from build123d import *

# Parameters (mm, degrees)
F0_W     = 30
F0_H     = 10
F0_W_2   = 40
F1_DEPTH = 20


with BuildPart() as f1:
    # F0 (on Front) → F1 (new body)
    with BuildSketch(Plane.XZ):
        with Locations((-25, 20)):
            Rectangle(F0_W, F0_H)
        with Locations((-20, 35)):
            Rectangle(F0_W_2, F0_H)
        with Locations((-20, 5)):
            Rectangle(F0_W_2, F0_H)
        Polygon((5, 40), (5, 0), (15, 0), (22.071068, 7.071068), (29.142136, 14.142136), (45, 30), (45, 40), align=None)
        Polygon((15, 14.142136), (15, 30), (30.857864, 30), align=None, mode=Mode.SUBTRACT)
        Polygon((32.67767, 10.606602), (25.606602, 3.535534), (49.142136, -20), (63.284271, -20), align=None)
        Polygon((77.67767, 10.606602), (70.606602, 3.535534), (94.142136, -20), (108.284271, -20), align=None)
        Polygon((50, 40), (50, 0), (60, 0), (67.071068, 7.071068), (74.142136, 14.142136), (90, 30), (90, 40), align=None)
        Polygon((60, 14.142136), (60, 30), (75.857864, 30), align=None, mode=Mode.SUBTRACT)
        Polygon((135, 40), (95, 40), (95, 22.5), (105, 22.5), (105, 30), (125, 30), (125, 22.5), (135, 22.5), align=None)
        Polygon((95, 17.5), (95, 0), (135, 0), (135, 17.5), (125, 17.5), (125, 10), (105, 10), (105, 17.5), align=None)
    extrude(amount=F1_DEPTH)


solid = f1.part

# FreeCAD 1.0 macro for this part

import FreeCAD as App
import Part
import Sketcher

V = App.Vector
Q = App.Units.Quantity


def add_polygon(sketch, points):
    """Adds a closed chain of lines whose ends are joined by coincident constraints."""
    first, n = sketch.GeometryCount, len(points)
    for a, b in zip(points, points[1:] + points[:1]):
        sketch.addGeometry(Part.LineSegment(App.Vector(*a, 0), App.Vector(*b, 0)), False)
    for i in range(n):
        sketch.addConstraint(Sketcher.Constraint("Coincident", first + i, 2, first + (i + 1) % n, 1))

doc = App.newDocument("Part")
body = doc.addObject("PartDesign::Body", "Body")
body.AllowCompound = True

# Sketch on XZ plane
sketch1 = body.newObject("Sketcher::SketchObject", "Sketch")
sketch1.AttachmentSupport = (doc.getObject("XZ_Plane"), [""])
sketch1.MapMode = "FlatFace"
add_polygon(sketch1, [(-40, 25), (-40, 15), (-10, 15), (-10, 25)])  # lines 0-3
add_polygon(sketch1, [(-40, 40), (-40, 30), (0, 30), (0, 40)])  # lines 4-7
add_polygon(sketch1, [(-40, 10), (-40, 0), (0, 0), (0, 10)])  # lines 8-11
add_polygon(sketch1, [(5, 40), (5, 0), (15, 0), (45, 30), (45, 40)])  # lines 12-16
add_polygon(sketch1, [(31, 30), (15, 14), (15, 30)])  # lines 17-19
add_polygon(sketch1, [(33, 11), (26, 4), (49, -20), (63, -20)])  # lines 20-23
add_polygon(sketch1, [(78, 11), (71, 4), (94, -20), (108, -20)])  # lines 24-27
add_polygon(sketch1, [(50, 40), (50, 0), (60, 0), (90, 30), (90, 40)])  # lines 28-32
add_polygon(sketch1, [(76, 30), (60, 14), (60, 30)])  # lines 33-35
add_polygon(sketch1, [(135, 40), (95, 40), (95, 22), (105, 22), (105, 30), (125, 30), (125, 22), (135, 22)])  # lines 36-43
add_polygon(sketch1, [(95, 18), (95, 0), (135, 0), (135, 18), (125, 18), (125, 10), (105, 10), (105, 18)])  # lines 44-51
sketch1.addConstraint(Sketcher.Constraint("Vertical", 0))
sketch1.addConstraint(Sketcher.Constraint("Horizontal", 1))
sketch1.addConstraint(Sketcher.Constraint("Vertical", 2))
sketch1.addConstraint(Sketcher.Constraint("Horizontal", 3))
sketch1.addConstraint(Sketcher.Constraint("Vertical", 4))
sketch1.addConstraint(Sketcher.Constraint("Horizontal", 5))
sketch1.addConstraint(Sketcher.Constraint("Vertical", 6))
sketch1.addConstraint(Sketcher.Constraint("Horizontal", 7))
sketch1.addConstraint(Sketcher.Constraint("Vertical", 8))
sketch1.addConstraint(Sketcher.Constraint("Horizontal", 9))
sketch1.addConstraint(Sketcher.Constraint("Vertical", 10))
sketch1.addConstraint(Sketcher.Constraint("Horizontal", 11))
sketch1.addConstraint(Sketcher.Constraint("Vertical", 12))
sketch1.addConstraint(Sketcher.Constraint("Horizontal", 13))
sketch1.addConstraint(Sketcher.Constraint("Vertical", 15))
sketch1.addConstraint(Sketcher.Constraint("Horizontal", 16))
sketch1.addConstraint(Sketcher.Constraint("Vertical", 18))
sketch1.addConstraint(Sketcher.Constraint("Horizontal", 19))
sketch1.addConstraint(Sketcher.Constraint("Horizontal", 22))
sketch1.addConstraint(Sketcher.Constraint("Horizontal", 26))
sketch1.addConstraint(Sketcher.Constraint("Vertical", 28))
sketch1.addConstraint(Sketcher.Constraint("Horizontal", 29))
sketch1.addConstraint(Sketcher.Constraint("Vertical", 31))
sketch1.addConstraint(Sketcher.Constraint("Horizontal", 32))
sketch1.addConstraint(Sketcher.Constraint("Vertical", 34))
sketch1.addConstraint(Sketcher.Constraint("Horizontal", 35))
sketch1.addConstraint(Sketcher.Constraint("Horizontal", 36))
sketch1.addConstraint(Sketcher.Constraint("Vertical", 37))
sketch1.addConstraint(Sketcher.Constraint("Horizontal", 38))
sketch1.addConstraint(Sketcher.Constraint("Vertical", 39))
sketch1.addConstraint(Sketcher.Constraint("Horizontal", 40))
sketch1.addConstraint(Sketcher.Constraint("Vertical", 41))
sketch1.addConstraint(Sketcher.Constraint("Horizontal", 42))
sketch1.addConstraint(Sketcher.Constraint("Vertical", 43))
sketch1.addConstraint(Sketcher.Constraint("Vertical", 44))
sketch1.addConstraint(Sketcher.Constraint("Horizontal", 45))
sketch1.addConstraint(Sketcher.Constraint("Vertical", 46))
sketch1.addConstraint(Sketcher.Constraint("Horizontal", 47))
sketch1.addConstraint(Sketcher.Constraint("Vertical", 48))
sketch1.addConstraint(Sketcher.Constraint("Horizontal", 49))
sketch1.addConstraint(Sketcher.Constraint("Vertical", 50))
sketch1.addConstraint(Sketcher.Constraint("Horizontal", 51))
sketch1.addConstraint(Sketcher.Constraint("Coincident", 9, 2, -1, 1))
sketch1.addConstraint(Sketcher.Constraint("PointOnObject", 5, 2, -2))
sketch1.addConstraint(Sketcher.Constraint("PointOnObject", 12, 2, -1))
sketch1.addConstraint(Sketcher.Constraint("PointOnObject", 28, 2, -1))
sketch1.addConstraint(Sketcher.Constraint("PointOnObject", 44, 2, -1))
sketch1.addConstraint(Sketcher.Constraint("Parallel", 14, 17))
sketch1.addConstraint(Sketcher.Constraint("Parallel", 17, 20))
sketch1.addConstraint(Sketcher.Constraint("Perpendicular", 20, 21))
sketch1.addConstraint(Sketcher.Constraint("Parallel", 21, 23))
sketch1.addConstraint(Sketcher.Constraint("Perpendicular", 23, 24))
sketch1.addConstraint(Sketcher.Constraint("Perpendicular", 24, 25))
sketch1.addConstraint(Sketcher.Constraint("Parallel", 25, 27))
sketch1.addConstraint(Sketcher.Constraint("Perpendicular", 27, 30))
sketch1.addConstraint(Sketcher.Constraint("Parallel", 30, 33))
sketch1.addConstraint(Sketcher.Constraint("Horizontal", 5, 2, 14, 2))
sketch1.addConstraint(Sketcher.Constraint("Horizontal", 7, 2, 15, 2))
sketch1.addConstraint(Sketcher.Constraint("Horizontal", 14, 2, 18, 2))
sketch1.addConstraint(Sketcher.Constraint("Horizontal", 20, 2, 24, 2))
sketch1.addConstraint(Sketcher.Constraint("Horizontal", 22, 2, 25, 2))
sketch1.addConstraint(Sketcher.Constraint("Horizontal", 23, 2, 27, 2))
sketch1.addConstraint(Sketcher.Constraint("Horizontal", 19, 2, 30, 2))
sketch1.addConstraint(Sketcher.Constraint("Horizontal", 16, 2, 31, 2))
sketch1.addConstraint(Sketcher.Constraint("Horizontal", 17, 2, 33, 2))
sketch1.addConstraint(Sketcher.Constraint("Horizontal", 30, 2, 34, 2))
sketch1.addConstraint(Sketcher.Constraint("Horizontal", 32, 2, 36, 2))
sketch1.addConstraint(Sketcher.Constraint("Horizontal", 35, 2, 39, 2))
sketch1.addConstraint(Sketcher.Constraint("Horizontal", 38, 2, 41, 2))
sketch1.addConstraint(Sketcher.Constraint("Horizontal", 11, 2, 48, 2))
sketch1.addConstraint(Sketcher.Constraint("Horizontal", 47, 2, 50, 2))
sketch1.addConstraint(Sketcher.Constraint("Vertical", 3, 2, 4, 2))
sketch1.addConstraint(Sketcher.Constraint("Vertical", 7, 2, 8, 2))
sketch1.addConstraint(Sketcher.Constraint("Vertical", 13, 2, 17, 2))
sketch1.addConstraint(Sketcher.Constraint("Vertical", 29, 2, 33, 2))
sketch1.addConstraint(Sketcher.Constraint("Vertical", 37, 2, 44, 2))
sketch1.addConstraint(Sketcher.Constraint("Vertical", 43, 2, 45, 2))
sketch1.addConstraint(Sketcher.Constraint("Vertical", 41, 2, 47, 2))
sketch1.addConstraint(Sketcher.Constraint("Vertical", 39, 2, 49, 2))
sketch1.addConstraint(Sketcher.Constraint("Equal", 11, 16))
sketch1.addConstraint(Sketcher.Constraint("Equal", 13, 29))
sketch1.addConstraint(Sketcher.Constraint("Equal", 32, 36))
sketch1.addConstraint(Sketcher.Constraint("Equal", 29, 38))
sketch1.addConstraint(Sketcher.Constraint("Equal", 38, 42))
sketch1.addConstraint(Sketcher.Constraint("Equal", 51, 0))
sketch1.addConstraint(Sketcher.Constraint("Equal", 2, 4))
sketch1.addConstraint(Sketcher.Constraint("Equal", 6, 8))
sketch1.addConstraint(Sketcher.Constraint("Equal", 45, 12))
sketch1.addConstraint(Sketcher.Constraint("Equal", 43, 44))
sketch1.addConstraint(Sketcher.Constraint("DistanceX", 1, 1, 1, 2, Q("30 mm")))
sketch1.addConstraint(Sketcher.Constraint("DistanceX", 5, 1, 5, 2, Q("40 mm")))
sketch1.addConstraint(Sketcher.Constraint("DistanceX", 13, 1, 13, 2, Q("10 mm")))
sketch1.addConstraint(Sketcher.Constraint("Distance", 20, Q("10 mm")))
sketch1.addConstraint(Sketcher.Constraint("DistanceY", 37, 2, 37, 1, Q("17.5 mm")))
sketch1.addConstraint(Sketcher.Constraint("DistanceY", -1, 1, 0, 2, Q("15 mm")))
sketch1.addConstraint(Sketcher.Constraint("DistanceX", -1, 1, 12, 2, Q("5 mm")))
sketch1.addConstraint(Sketcher.Constraint("DistanceY", 21, 2, -1, 1, Q("20 mm")))
sketch1.addConstraint(Sketcher.Constraint("DistanceX", -1, 1, 28, 2, Q("50 mm")))
sketch1.addConstraint(Sketcher.Constraint("DistanceX", -1, 1, 36, 2, Q("95 mm")))
sketch1.addConstraint(Sketcher.Constraint("DistanceX", 21, 2, 25, 2, Q("45 mm")))
sketch1.addConstraint(Sketcher.Constraint("DistanceX", -1, 1, 20, 2, Q("25.606602 mm")))
sketch1.addConstraint(Sketcher.Constraint("DistanceX", 22, 2, 27, 2, Q("14.393399 mm")))
sketch1.addConstraint(Sketcher.Constraint("DistanceX", 19, 1, 19, 2, Q("15.857864 mm")))
pad1 = body.newObject("PartDesign::Pad", "Pad")
pad1.Profile = sketch1
pad1.Length = 20

doc.recompute()
